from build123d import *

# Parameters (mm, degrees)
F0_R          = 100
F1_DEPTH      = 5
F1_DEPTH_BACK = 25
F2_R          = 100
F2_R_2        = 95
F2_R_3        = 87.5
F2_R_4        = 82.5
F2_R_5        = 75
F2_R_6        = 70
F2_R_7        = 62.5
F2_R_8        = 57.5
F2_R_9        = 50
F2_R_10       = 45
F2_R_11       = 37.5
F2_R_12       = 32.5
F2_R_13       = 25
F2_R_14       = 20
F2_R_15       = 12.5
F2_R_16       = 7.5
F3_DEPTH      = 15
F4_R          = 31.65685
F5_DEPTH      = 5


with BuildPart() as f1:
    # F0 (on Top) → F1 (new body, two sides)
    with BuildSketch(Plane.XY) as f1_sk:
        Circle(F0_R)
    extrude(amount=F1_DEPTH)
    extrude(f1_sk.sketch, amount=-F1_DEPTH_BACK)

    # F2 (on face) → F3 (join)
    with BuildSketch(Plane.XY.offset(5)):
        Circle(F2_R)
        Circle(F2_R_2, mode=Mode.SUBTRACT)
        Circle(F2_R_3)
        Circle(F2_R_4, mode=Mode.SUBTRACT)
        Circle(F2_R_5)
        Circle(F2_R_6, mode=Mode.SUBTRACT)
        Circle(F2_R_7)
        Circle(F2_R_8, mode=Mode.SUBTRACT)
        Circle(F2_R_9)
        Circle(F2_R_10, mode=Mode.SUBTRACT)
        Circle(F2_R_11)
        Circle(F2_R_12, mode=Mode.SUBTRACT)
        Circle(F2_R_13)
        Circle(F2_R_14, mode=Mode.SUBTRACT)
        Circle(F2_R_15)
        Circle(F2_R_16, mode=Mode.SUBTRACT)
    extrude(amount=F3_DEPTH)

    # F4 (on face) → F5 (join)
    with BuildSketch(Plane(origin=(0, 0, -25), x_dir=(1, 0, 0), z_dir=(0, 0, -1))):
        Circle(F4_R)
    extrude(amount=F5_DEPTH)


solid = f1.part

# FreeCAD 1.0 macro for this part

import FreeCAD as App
import Part
import Sketcher
from FreeCAD import Vector

doc = App.newDocument("Part")
params = doc.addObject("Spreadsheet::Sheet", "Params")
for row, (alias, value) in enumerate([
    ("sketch1_diameter", "200 mm"),
    ("pad1_length", "5 mm"),
    ("pad1_length2", "25 mm"),
    ("sketch2_diameter", "200 mm"),
    ("sketch2_diameter2", "190 mm"),
    ("sketch2_diameter3", "175 mm"),
    ("sketch2_diameter4", "165 mm"),
    ("sketch2_diameter5", "150 mm"),
    ("pad2_length", "15 mm"),
    ("pad3_length", "5 mm"),
], start=1):
    params.set(f"A{row}", alias)
    params.set(f"B{row}", "=" + value)
    params.setAlias(f"B{row}", alias)

body = doc.addObject("PartDesign::Body", "Body")

# Sketch on XY plane
sketch1 = body.newObject("Sketcher::SketchObject", "Sketch")
sketch1.AttachmentSupport = (doc.getObject("XY_Plane"), [""])
sketch1.MapMode = "FlatFace"
sketch1.addGeometry(Part.Circle(Vector(0, 0, 0), Vector(0, 0, 1), 100), False)
sketch1.addConstraint(Sketcher.Constraint("Coincident", 0, 3, -1, 1))
sketch1.addConstraint(Sketcher.Constraint("Diameter", 0, 200.0))
sketch1.setExpression("Constraints[1]", "Params.sketch1_diameter")
pad1 = body.newObject("PartDesign::Pad", "Pad")
pad1.Profile = sketch1
pad1.Type = "TwoLengths"
pad1.setExpression("Length", "Params.pad1_length")
pad1.setExpression("Length2", "Params.pad1_length2")

# Sketch on XY plane
sketch2 = body.newObject("Sketcher::SketchObject", "Sketch001")
sketch2.AttachmentSupport = (doc.getObject("XY_Plane"), [""])
sketch2.MapMode = "FlatFace"
sketch2.AttachmentOffset = App.Placement(Vector(0, 0, 5), App.Rotation())
sketch2.addGeometry(Part.Circle(Vector(0, 0, 0), Vector(0, 0, 1), 100), False)
sketch2.addGeometry(Part.Circle(Vector(0, 0, 0), Vector(0, 0, 1), 95), False)
sketch2.addGeometry(Part.Circle(Vector(0, 0, 0), Vector(0, 0, 1), 87.5), False)
sketch2.addGeometry(Part.Circle(Vector(0, 0, 0), Vector(0, 0, 1), 82.5), False)
sketch2.addGeometry(Part.Circle(Vector(0, 0, 0), Vector(0, 0, 1), 75), False)
sketch2.addGeometry(Part.Circle(Vector(0, 0, 0), Vector(0, 0, 1), 70), False)
sketch2.addGeometry(Part.Circle(Vector(0, 0, 0), Vector(0, 0, 1), 62.5), False)
sketch2.addGeometry(Part.Circle(Vector(0, 0, 0), Vector(0, 0, 1), 57.5), False)
sketch2.addGeometry(Part.Circle(Vector(0, 0, 0), Vector(0, 0, 1), 50), False)
sketch2.addGeometry(Part.Circle(Vector(0, 0, 0), Vector(0, 0, 1), 45), False)
sketch2.addGeometry(Part.Circle(Vector(0, 0, 0), Vector(0, 0, 1), 37.5), False)
sketch2.addGeometry(Part.Circle(Vector(0, 0, 0), Vector(0, 0, 1), 32.5), False)
sketch2.addGeometry(Part.Circle(Vector(0, 0, 0), Vector(0, 0, 1), 25), False)
sketch2.addGeometry(Part.Circle(Vector(0, 0, 0), Vector(0, 0, 1), 20), False)
sketch2.addGeometry(Part.Circle(Vector(0, 0, 0), Vector(0, 0, 1), 12.5), False)
sketch2.addGeometry(Part.Circle(Vector(0, 0, 0), Vector(0, 0, 1), 7.5), False)
sketch2.addConstraint(Sketcher.Constraint("Coincident", 0, 3, -1, 1))
sketch2.addConstraint(Sketcher.Constraint("Coincident", 1, 3, -1, 1))
sketch2.addConstraint(Sketcher.Constraint("Coincident", 2, 3, -1, 1))
sketch2.addConstraint(Sketcher.Constraint("Coincident", 3, 3, -1, 1))
sketch2.addConstraint(Sketcher.Constraint("Coincident", 4, 3, -1, 1))
sketch2.addConstraint(Sketcher.Constraint("Coincident", 5, 3, -1, 1))
sketch2.addConstraint(Sketcher.Constraint("Coincident", 6, 3, -1, 1))
sketch2.addConstraint(Sketcher.Constraint("Coincident", 7, 3, -1, 1))
sketch2.addConstraint(Sketcher.Constraint("Coincident", 8, 3, -1, 1))
sketch2.addConstraint(Sketcher.Constraint("Coincident", 9, 3, -1, 1))
sketch2.addConstraint(Sketcher.Constraint("Coincident", 10, 3, -1, 1))
sketch2.addConstraint(Sketcher.Constraint("Coincident", 11, 3, -1, 1))
sketch2.addConstraint(Sketcher.Constraint("Coincident", 12, 3, -1, 1))
sketch2.addConstraint(Sketcher.Constraint("Coincident", 13, 3, -1, 1))
sketch2.addConstraint(Sketcher.Constraint("Coincident", 14, 3, -1, 1))
sketch2.addConstraint(Sketcher.Constraint("Coincident", 15, 3, -1, 1))
sketch2.addConstraint(Sketcher.Constraint("Diameter", 0, 200.0))
sketch2.addConstraint(Sketcher.Constraint("Diameter", 1, 190.0))
sketch2.addConstraint(Sketcher.Constraint("Diameter", 2, 175.0))
sketch2.addConstraint(Sketcher.Constraint("Diameter", 3, 165.0))
sketch2.addConstraint(Sketcher.Constraint("Diameter", 4, 150.0))
sketch2.addConstraint(Sketcher.Constraint("Diameter", 5, 140.0))
sketch2.addConstraint(Sketcher.Constraint("Diameter", 6, 125.0))
sketch2.addConstraint(Sketcher.Constraint("Diameter", 7, 115.0))
sketch2.addConstraint(Sketcher.Constraint("Diameter", 8, 100.0))
sketch2.addConstraint(Sketcher.Constraint("Diameter", 9, 90.0))
sketch2.addConstraint(Sketcher.Constraint("Diameter", 10, 75.0))
sketch2.addConstraint(Sketcher.Constraint("Diameter", 11, 65.0))
sketch2.addConstraint(Sketcher.Constraint("Diameter", 12, 50.0))
sketch2.addConstraint(Sketcher.Constraint("Diameter", 13, 40.0))
sketch2.addConstraint(Sketcher.Constraint("Diameter", 14, 25.0))
sketch2.addConstraint(Sketcher.Constraint("Diameter", 15, 15.0))
sketch2.setExpression("Constraints[16]", "Params.sketch2_diameter")
sketch2.setExpression("Constraints[17]", "Params.sketch2_diameter2")
sketch2.setExpression("Constraints[18]", "Params.sketch2_diameter3")
sketch2.setExpression("Constraints[19]", "Params.sketch2_diameter4")
sketch2.setExpression("Constraints[20]", "Params.sketch2_diameter5")
pad2 = body.newObject("PartDesign::Pad", "Pad001")
pad2.Profile = sketch2
pad2.setExpression("Length", "Params.pad2_length")

# Sketch on XY plane
sketch3 = body.newObject("Sketcher::SketchObject", "Sketch002")
sketch3.AttachmentSupport = (doc.getObject("XY_Plane"), [""])
sketch3.MapMode = "FlatFace"
sketch3.AttachmentOffset = App.Placement(Vector(0, 0, -25), App.Rotation())
sketch3.addGeometry(Part.Circle(Vector(0, 0, 0), Vector(0, 0, 1), 31.65685), False)
sketch3.addConstraint(Sketcher.Constraint("Coincident", 0, 3, -1, 1))
sketch3.addConstraint(Sketcher.Constraint("Diameter", 0, 63.3137))
pad3 = body.newObject("PartDesign::Pad", "Pad002")
pad3.Profile = sketch3
pad3.setExpression("Length", "Params.pad3_length")
pad3.Reversed = True

doc.recompute()
